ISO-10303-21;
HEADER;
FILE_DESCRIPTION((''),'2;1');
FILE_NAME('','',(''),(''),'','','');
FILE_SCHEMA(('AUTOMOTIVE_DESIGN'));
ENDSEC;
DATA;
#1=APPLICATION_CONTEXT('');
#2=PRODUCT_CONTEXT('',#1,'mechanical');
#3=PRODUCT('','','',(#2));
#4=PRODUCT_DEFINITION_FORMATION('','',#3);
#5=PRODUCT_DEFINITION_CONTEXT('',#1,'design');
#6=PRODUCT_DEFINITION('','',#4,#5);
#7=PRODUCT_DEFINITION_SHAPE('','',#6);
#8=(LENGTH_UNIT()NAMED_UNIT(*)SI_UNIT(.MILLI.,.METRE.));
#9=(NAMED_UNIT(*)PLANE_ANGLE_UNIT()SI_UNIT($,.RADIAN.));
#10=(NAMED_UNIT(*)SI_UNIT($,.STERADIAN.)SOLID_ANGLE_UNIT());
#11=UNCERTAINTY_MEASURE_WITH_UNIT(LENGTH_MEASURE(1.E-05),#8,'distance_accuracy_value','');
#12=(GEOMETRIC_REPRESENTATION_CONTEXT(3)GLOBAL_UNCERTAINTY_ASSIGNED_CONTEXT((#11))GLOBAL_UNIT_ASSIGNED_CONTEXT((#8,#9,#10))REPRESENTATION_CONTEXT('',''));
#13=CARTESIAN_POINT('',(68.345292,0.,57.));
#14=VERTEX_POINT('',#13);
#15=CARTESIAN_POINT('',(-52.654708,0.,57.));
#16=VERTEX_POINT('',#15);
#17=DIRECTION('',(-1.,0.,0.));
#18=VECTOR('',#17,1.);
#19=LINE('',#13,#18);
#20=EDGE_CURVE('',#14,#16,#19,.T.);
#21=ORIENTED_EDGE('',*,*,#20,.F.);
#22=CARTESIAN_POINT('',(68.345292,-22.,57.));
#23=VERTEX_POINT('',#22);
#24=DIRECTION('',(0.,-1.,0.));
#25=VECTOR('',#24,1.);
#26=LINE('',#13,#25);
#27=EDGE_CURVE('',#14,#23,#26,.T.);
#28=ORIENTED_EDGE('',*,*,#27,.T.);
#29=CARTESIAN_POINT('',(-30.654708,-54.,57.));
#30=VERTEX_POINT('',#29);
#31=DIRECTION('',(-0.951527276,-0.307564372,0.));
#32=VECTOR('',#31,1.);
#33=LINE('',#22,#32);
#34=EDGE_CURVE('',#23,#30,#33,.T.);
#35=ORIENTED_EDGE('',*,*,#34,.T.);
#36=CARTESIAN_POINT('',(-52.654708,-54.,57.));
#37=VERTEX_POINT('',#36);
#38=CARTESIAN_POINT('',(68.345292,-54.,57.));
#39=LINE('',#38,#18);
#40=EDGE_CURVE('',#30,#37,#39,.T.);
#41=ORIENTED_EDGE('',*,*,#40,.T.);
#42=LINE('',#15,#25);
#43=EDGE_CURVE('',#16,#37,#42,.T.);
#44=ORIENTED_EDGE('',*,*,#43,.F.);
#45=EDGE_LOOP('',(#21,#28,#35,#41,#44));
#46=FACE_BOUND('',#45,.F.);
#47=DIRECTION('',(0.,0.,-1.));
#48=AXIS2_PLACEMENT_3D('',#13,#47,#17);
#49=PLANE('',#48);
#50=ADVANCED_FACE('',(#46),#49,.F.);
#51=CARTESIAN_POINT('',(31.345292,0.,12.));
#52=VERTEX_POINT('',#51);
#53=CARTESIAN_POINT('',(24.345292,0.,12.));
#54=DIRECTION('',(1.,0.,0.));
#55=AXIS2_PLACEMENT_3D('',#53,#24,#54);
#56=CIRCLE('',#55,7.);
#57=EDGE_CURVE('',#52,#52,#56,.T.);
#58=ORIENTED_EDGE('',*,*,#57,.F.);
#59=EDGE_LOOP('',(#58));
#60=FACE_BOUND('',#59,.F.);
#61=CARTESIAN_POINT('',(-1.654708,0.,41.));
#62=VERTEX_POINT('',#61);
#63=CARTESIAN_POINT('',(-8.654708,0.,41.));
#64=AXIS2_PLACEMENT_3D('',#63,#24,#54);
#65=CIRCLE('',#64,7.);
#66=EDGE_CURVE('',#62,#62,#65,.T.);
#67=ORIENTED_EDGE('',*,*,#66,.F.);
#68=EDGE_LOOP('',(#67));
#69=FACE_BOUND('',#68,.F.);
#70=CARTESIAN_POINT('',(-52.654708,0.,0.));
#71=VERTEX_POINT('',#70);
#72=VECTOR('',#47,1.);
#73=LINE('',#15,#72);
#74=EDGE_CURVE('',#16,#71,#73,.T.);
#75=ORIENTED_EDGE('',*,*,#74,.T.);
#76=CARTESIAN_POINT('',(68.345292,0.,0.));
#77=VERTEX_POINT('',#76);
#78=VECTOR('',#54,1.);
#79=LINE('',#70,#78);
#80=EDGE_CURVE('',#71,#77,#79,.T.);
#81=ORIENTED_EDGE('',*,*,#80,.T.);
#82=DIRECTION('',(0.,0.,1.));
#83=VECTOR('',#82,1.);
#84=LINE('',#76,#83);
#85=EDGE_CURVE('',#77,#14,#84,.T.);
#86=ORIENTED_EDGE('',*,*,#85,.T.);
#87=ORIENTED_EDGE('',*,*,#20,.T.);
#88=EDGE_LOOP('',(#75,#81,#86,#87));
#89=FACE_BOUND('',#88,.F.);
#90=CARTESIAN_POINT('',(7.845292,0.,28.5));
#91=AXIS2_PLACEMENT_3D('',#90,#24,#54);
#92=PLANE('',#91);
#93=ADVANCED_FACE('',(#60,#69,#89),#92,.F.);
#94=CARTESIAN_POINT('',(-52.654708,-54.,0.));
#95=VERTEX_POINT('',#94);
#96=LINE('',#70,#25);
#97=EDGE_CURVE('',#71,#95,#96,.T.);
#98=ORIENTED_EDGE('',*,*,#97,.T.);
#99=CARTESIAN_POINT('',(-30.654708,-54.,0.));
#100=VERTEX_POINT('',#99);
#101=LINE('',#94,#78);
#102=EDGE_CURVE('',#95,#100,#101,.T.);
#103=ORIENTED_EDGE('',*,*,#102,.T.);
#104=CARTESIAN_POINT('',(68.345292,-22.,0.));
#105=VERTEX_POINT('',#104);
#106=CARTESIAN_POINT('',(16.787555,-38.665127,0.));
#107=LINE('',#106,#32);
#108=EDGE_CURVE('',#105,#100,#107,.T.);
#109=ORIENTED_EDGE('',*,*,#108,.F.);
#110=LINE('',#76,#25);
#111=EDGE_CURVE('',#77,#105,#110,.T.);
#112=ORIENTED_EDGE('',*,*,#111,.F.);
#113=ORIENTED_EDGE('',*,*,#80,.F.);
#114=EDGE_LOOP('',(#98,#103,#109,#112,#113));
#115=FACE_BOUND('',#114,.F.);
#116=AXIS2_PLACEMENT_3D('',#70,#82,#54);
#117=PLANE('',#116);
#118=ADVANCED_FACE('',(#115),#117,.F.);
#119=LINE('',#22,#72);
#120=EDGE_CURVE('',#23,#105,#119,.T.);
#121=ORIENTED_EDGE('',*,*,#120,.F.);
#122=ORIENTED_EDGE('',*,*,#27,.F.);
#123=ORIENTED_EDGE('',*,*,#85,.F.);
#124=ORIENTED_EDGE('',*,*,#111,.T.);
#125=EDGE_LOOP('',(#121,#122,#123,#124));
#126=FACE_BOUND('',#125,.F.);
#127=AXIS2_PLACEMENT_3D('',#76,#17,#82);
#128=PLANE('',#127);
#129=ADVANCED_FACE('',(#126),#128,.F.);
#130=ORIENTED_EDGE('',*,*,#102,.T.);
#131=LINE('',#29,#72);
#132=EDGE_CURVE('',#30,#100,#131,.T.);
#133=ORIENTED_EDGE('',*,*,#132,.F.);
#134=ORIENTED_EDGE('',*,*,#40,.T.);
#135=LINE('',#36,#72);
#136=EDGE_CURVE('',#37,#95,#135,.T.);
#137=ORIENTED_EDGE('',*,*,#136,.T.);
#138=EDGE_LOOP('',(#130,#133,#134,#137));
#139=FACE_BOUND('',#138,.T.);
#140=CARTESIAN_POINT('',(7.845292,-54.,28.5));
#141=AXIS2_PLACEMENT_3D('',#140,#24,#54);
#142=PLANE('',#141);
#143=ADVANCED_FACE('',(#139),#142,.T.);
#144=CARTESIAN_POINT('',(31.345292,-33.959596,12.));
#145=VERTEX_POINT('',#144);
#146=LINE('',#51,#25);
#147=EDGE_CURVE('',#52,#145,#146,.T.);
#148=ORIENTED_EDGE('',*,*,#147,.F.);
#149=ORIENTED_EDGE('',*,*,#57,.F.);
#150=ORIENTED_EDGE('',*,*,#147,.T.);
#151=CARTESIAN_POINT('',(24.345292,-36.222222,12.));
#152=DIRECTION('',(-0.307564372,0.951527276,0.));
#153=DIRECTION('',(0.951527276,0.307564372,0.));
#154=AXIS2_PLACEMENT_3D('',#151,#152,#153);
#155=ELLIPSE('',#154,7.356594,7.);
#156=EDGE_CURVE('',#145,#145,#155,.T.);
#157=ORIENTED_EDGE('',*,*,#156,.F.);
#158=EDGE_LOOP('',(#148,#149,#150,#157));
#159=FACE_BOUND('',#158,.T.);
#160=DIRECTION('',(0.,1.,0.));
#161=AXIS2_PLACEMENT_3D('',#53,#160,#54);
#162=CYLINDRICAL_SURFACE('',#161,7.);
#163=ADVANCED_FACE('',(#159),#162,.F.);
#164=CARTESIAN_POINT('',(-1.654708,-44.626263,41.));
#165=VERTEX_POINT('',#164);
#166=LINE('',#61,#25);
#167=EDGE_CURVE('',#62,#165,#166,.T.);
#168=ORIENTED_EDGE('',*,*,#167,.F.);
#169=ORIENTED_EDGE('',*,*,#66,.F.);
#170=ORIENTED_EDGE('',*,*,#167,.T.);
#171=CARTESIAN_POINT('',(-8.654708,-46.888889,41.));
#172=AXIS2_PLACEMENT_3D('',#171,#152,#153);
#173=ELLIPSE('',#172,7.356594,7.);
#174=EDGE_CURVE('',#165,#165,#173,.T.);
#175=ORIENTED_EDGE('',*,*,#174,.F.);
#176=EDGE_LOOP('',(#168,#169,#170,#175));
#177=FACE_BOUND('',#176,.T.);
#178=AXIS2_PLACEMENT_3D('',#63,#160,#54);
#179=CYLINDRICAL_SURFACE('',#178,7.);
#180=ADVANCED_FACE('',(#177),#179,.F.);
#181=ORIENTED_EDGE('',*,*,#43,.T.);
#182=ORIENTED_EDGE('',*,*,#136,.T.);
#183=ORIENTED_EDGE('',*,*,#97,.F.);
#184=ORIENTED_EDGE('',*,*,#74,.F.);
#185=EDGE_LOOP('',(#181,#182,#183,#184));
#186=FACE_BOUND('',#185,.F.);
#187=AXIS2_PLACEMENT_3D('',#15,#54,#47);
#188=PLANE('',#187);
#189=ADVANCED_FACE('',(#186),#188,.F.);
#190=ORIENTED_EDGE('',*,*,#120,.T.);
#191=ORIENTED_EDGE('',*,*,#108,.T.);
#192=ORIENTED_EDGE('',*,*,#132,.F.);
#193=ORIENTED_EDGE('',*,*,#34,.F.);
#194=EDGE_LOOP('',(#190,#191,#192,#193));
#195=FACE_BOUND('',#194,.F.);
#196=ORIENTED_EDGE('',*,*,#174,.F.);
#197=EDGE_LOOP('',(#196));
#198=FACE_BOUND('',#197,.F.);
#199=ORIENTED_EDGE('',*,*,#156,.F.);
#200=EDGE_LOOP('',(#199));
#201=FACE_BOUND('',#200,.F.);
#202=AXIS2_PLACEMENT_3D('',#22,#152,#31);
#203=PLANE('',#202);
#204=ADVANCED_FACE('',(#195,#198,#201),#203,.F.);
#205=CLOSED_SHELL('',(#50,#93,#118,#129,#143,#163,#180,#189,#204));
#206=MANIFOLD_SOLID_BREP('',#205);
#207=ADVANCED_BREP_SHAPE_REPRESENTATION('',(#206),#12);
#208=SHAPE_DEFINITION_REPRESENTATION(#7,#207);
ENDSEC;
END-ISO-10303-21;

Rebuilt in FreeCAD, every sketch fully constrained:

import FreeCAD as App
import Part
import Sketcher
from FreeCAD import Vector


def add_polygon(sketch, points):
    """Adds a closed chain of lines whose ends are joined by coincident constraints."""
    first, n = sketch.GeometryCount, len(points)
    for a, b in zip(points, points[1:] + points[:1]):
        sketch.addGeometry(Part.LineSegment(App.Vector(*a, 0), App.Vector(*b, 0)), False)
    for i in range(n):
        sketch.addConstraint(Sketcher.Constraint("Coincident", first + i, 2, first + (i + 1) % n, 1))

doc = App.newDocument("Part")
body = doc.addObject("PartDesign::Body", "Body")

sketch1 = doc.addObject("Sketcher::SketchObject", "Sketch")
body.addObject(sketch1)
sketch1.AttachmentSupport = (doc.XZ_Plane, [""])
sketch1.MapMode = "FlatFace"
add_polygon(sketch1, [(-53, 57), (-53, 0), (68, 0), (68, 57)])
sketch1.addGeometry(Part.Circle(Vector(24, 12, 0), Vector(0, 0, 1), 7), False)
sketch1.addGeometry(Part.Circle(Vector(-9, 41, 0), Vector(0, 0, 1), 7), False)
sketch1.addConstraint(Sketcher.Constraint("Vertical", 0))
sketch1.addConstraint(Sketcher.Constraint("Horizontal", 1))
sketch1.addConstraint(Sketcher.Constraint("Vertical", 2))
sketch1.addConstraint(Sketcher.Constraint("Horizontal", 3))
sketch1.addConstraint(Sketcher.Constraint("Equal", 4, 5))
sketch1.addConstraint(Sketcher.Constraint("PointOnObject", 0, 2, -1))
sketch1.addConstraint(Sketcher.Constraint("Diameter", 4, 14.0))
sketch1.addConstraint(Sketcher.Constraint("DistanceX", 1, 1, 1, 2, 121.0))
sketch1.addConstraint(Sketcher.Constraint("DistanceY", 0, 2, 0, 1, 57.0))
sketch1.addConstraint(Sketcher.Constraint("DistanceY", -1, 1, 4, 3, 12.0))
sketch1.addConstraint(Sketcher.Constraint("DistanceY", -1, 1, 5, 3, 41.0))
sketch1.addConstraint(Sketcher.Constraint("DistanceX", 5, 3, 4, 3, 33.0))
sketch1.addConstraint(Sketcher.Constraint("DistanceX", 0, 2, 5, 3, 44.0))
sketch1.addConstraint(Sketcher.Constraint("DistanceX", -1, 1, 1, 2, 68.345292))
pad1 = doc.addObject("PartDesign::Pad", "Pad")
body.addObject(pad1)
pad1.Profile = sketch1
pad1.Length = 54

sketch2 = doc.addObject("Sketcher::SketchObject", "Sketch001")
body.addObject(sketch2)
sketch2.AttachmentSupport = (doc.XY_Plane, [""])
sketch2.MapMode = "FlatFace"
sketch2.AttachmentOffset = App.Placement(Vector(0, 0, 57), App.Rotation())
add_polygon(sketch2, [(68, -22), (-31, -54), (68, -54)])
sketch2.addConstraint(Sketcher.Constraint("Horizontal", 1))
sketch2.addConstraint(Sketcher.Constraint("Vertical", 2))
sketch2.addConstraint(Sketcher.Constraint("DistanceX", 1, 1, 1, 2, 99.0))
sketch2.addConstraint(Sketcher.Constraint("DistanceY", 2, 1, 2, 2, 32.0))
sketch2.addConstraint(Sketcher.Constraint("DistanceY", 0, 2, -1, 1, 54.0))
sketch2.addConstraint(Sketcher.Constraint("DistanceX", -1, 1, 1, 2, 68.345292))
pocket1 = doc.addObject("PartDesign::Pocket", "Pocket")
body.addObject(pocket1)
pocket1.Profile = sketch2
pocket1.Type = "ThroughAll"

doc.recompute()
